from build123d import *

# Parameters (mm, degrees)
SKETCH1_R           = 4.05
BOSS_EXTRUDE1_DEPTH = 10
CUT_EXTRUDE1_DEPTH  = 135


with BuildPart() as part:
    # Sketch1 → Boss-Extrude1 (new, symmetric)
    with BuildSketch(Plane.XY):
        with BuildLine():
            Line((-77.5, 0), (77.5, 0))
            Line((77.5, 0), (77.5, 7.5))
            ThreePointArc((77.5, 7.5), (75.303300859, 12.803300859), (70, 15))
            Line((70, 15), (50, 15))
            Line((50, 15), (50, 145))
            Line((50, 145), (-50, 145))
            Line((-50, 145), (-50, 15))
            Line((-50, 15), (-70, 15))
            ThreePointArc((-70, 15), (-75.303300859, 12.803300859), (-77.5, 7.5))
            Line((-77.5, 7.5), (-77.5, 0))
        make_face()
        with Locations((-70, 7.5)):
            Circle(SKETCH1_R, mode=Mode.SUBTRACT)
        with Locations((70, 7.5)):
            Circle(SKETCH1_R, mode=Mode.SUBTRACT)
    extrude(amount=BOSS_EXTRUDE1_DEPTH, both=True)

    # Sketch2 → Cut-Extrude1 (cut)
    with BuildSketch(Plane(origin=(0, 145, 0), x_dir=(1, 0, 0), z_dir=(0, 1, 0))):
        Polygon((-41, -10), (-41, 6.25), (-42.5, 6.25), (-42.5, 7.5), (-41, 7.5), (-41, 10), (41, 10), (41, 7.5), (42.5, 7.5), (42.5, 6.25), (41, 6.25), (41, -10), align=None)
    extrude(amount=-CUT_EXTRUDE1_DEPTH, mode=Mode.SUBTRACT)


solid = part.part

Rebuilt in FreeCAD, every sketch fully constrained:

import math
import FreeCAD as App
import Part
import Sketcher
from FreeCAD import Vector
Q = App.Units.Quantity

doc = App.newDocument("Part")
body = doc.addObject("PartDesign::Body", "Body")

# Sketch on XY plane
sketch1 = body.newObject("Sketcher::SketchObject", "Sketch")
sketch1.AttachmentSupport = (doc.getObject("XY_Plane"), [""])
sketch1.MapMode = "FlatFace"
sketch1.addGeometry([
    Part.LineSegment(Vector(-77.5, 0, 0), Vector(77.5, 0, 0)),  # 0
    Part.LineSegment(Vector(77.5, 0, 0), Vector(77.5, 7.5, 0)),  # 1
    Part.ArcOfCircle(Part.Circle(Vector(70, 7.5, 0), Vector(0, 0, 1), 7.5), math.radians(0), math.radians(90)),  # 2
    Part.LineSegment(Vector(70, 15, 0), Vector(50, 15, 0)),  # 3
    Part.LineSegment(Vector(50, 15, 0), Vector(50, 145, 0)),  # 4
    Part.LineSegment(Vector(50, 145, 0), Vector(-50, 145, 0)),  # 5
    Part.LineSegment(Vector(-50, 145, 0), Vector(-50, 15, 0)),  # 6
    Part.LineSegment(Vector(-50, 15, 0), Vector(-70, 15, 0)),  # 7
    Part.ArcOfCircle(Part.Circle(Vector(-70, 7.5, 0), Vector(0, 0, 1), 7.5), math.radians(90), math.radians(180)),  # 8
    Part.LineSegment(Vector(-77.5, 7.5, 0), Vector(-77.5, 0, 0)),  # 9
    Part.Circle(Vector(-70, 7.5, 0), Vector(0, 0, 1), 4),  # 10
    Part.Circle(Vector(70, 7.5, 0), Vector(0, 0, 1), 4),  # 11
], False)
sketch1.addConstraint([
    Sketcher.Constraint("Coincident", 0, 2, 1, 1),
    Sketcher.Constraint("Tangent", 1, 2, 2, 1),
    Sketcher.Constraint("Tangent", 2, 2, 3, 1),
    Sketcher.Constraint("Coincident", 3, 2, 4, 1),
    Sketcher.Constraint("Coincident", 4, 2, 5, 1),
    Sketcher.Constraint("Coincident", 5, 2, 6, 1),
    Sketcher.Constraint("Coincident", 6, 2, 7, 1),
    Sketcher.Constraint("Tangent", 7, 2, 8, 1),
    Sketcher.Constraint("Tangent", 8, 2, 9, 1),
    Sketcher.Constraint("Coincident", 9, 2, 0, 1),
    Sketcher.Constraint("Horizontal", 0),
    Sketcher.Constraint("Vertical", 1),
    Sketcher.Constraint("Horizontal", 3),
    Sketcher.Constraint("Vertical", 4),
    Sketcher.Constraint("Horizontal", 5),
    Sketcher.Constraint("Vertical", 6),
    Sketcher.Constraint("Horizontal", 7),
    Sketcher.Constraint("Vertical", 9),
    Sketcher.Constraint("Coincident", 10, 3, 8, 3),
    Sketcher.Constraint("Coincident", 11, 3, 2, 3),
    Sketcher.Constraint("Equal", 2, 8),
    Sketcher.Constraint("Equal", 10, 11),
    Sketcher.Constraint("Symmetric", 0, 2, 9, 2, -1, 1),
    Sketcher.Constraint("Symmetric", 3, 2, 6, 2, -2),
    Sketcher.Constraint("Diameter", 10, Q("8.1 mm")),
    Sketcher.Constraint("Radius", 2, Q("7.5 mm")),
    Sketcher.Constraint("DistanceX", 0, 1, 0, 2, Q("155 mm")),
    Sketcher.Constraint("DistanceX", 3, 2, 3, 1, Q("20 mm")),
    Sketcher.Constraint("DistanceY", 4, 1, 4, 2, Q("130 mm")),
    Sketcher.Constraint("DistanceY", 1, 1, 1, 2, Q("7.5 mm")),
])
pad1 = body.newObject("PartDesign::Pad", "Pad")
pad1.Profile = sketch1
pad1.Length = 20
pad1.Midplane = True

# Sketch on XZ plane
sketch2 = body.newObject("Sketcher::SketchObject", "Sketch001")
sketch2.AttachmentSupport = (doc.getObject("XZ_Plane"), [""])
sketch2.MapMode = "FlatFace"
sketch2.AttachmentOffset = App.Placement(Vector(0, 0, -145), App.Rotation())
sketch2.addGeometry([
    Part.LineSegment(Vector(-41, -6.2, 0), Vector(-41, 10, 0)),  # 0
    Part.LineSegment(Vector(-41, 10, 0), Vector(41, 10, 0)),  # 1
    Part.LineSegment(Vector(41, 10, 0), Vector(41, -6.2, 0)),  # 2
    Part.LineSegment(Vector(41, -6.2, 0), Vector(42.5, -6.2, 0)),  # 3
    Part.LineSegment(Vector(42.5, -6.2, 0), Vector(42.5, -7.5, 0)),  # 4
    Part.LineSegment(Vector(42.5, -7.5, 0), Vector(41, -7.5, 0)),  # 5
    Part.LineSegment(Vector(41, -7.5, 0), Vector(41, -10, 0)),  # 6
    Part.LineSegment(Vector(41, -10, 0), Vector(-41, -10, 0)),  # 7
    Part.LineSegment(Vector(-41, -10, 0), Vector(-41, -7.5, 0)),  # 8
    Part.LineSegment(Vector(-41, -7.5, 0), Vector(-42.5, -7.5, 0)),  # 9
    Part.LineSegment(Vector(-42.5, -7.5, 0), Vector(-42.5, -6.2, 0)),  # 10
    Part.LineSegment(Vector(-42.5, -6.2, 0), Vector(-41, -6.2, 0)),  # 11
], False)
sketch2.addConstraint([
    Sketcher.Constraint("Coincident", 0, 2, 1, 1),
    Sketcher.Constraint("Coincident", 1, 2, 2, 1),
    Sketcher.Constraint("Coincident", 2, 2, 3, 1),
    Sketcher.Constraint("Coincident", 3, 2, 4, 1),
    Sketcher.Constraint("Coincident", 4, 2, 5, 1),
    Sketcher.Constraint("Coincident", 5, 2, 6, 1),
    Sketcher.Constraint("Coincident", 6, 2, 7, 1),
    Sketcher.Constraint("Coincident", 7, 2, 8, 1),
    Sketcher.Constraint("Coincident", 8, 2, 9, 1),
    Sketcher.Constraint("Coincident", 9, 2, 10, 1),
    Sketcher.Constraint("Coincident", 10, 2, 11, 1),
    Sketcher.Constraint("Coincident", 11, 2, 0, 1),
    Sketcher.Constraint("Vertical", 0),
    Sketcher.Constraint("Horizontal", 1),
    Sketcher.Constraint("Vertical", 2),
    Sketcher.Constraint("Horizontal", 3),
    Sketcher.Constraint("Vertical", 4),
    Sketcher.Constraint("Horizontal", 5),
    Sketcher.Constraint("Vertical", 6),
    Sketcher.Constraint("Horizontal", 7),
    Sketcher.Constraint("Vertical", 8),
    Sketcher.Constraint("Horizontal", 9),
    Sketcher.Constraint("Vertical", 10),
    Sketcher.Constraint("Horizontal", 11),
    Sketcher.Constraint("Symmetric", 0, 2, 6, 2, -1, 1),
    Sketcher.Constraint("Symmetric", 5, 2, 8, 2, -2),
    Sketcher.Constraint("Symmetric", 3, 2, 10, 2, -2),
    Sketcher.Constraint("Vertical", 2, 2, 5, 2),
    Sketcher.Constraint("DistanceX", 1, 1, 1, 2, Q("82 mm")),
    Sketcher.Constraint("DistanceX", 3, 1, 3, 2, Q("1.5 mm")),
    Sketcher.Constraint("DistanceY", 6, 2, 6, 1, Q("2.5 mm")),
    Sketcher.Constraint("DistanceY", -1, 1, 0, 2, Q("10 mm")),
    Sketcher.Constraint("DistanceY", 0, 1, 0, 2, Q("16.25 mm")),
])
pocket1 = body.newObject("PartDesign::Pocket", "Pocket")
pocket1.Profile = sketch2
pocket1.Length = 135
pocket1.Reversed = True

doc.recompute()
